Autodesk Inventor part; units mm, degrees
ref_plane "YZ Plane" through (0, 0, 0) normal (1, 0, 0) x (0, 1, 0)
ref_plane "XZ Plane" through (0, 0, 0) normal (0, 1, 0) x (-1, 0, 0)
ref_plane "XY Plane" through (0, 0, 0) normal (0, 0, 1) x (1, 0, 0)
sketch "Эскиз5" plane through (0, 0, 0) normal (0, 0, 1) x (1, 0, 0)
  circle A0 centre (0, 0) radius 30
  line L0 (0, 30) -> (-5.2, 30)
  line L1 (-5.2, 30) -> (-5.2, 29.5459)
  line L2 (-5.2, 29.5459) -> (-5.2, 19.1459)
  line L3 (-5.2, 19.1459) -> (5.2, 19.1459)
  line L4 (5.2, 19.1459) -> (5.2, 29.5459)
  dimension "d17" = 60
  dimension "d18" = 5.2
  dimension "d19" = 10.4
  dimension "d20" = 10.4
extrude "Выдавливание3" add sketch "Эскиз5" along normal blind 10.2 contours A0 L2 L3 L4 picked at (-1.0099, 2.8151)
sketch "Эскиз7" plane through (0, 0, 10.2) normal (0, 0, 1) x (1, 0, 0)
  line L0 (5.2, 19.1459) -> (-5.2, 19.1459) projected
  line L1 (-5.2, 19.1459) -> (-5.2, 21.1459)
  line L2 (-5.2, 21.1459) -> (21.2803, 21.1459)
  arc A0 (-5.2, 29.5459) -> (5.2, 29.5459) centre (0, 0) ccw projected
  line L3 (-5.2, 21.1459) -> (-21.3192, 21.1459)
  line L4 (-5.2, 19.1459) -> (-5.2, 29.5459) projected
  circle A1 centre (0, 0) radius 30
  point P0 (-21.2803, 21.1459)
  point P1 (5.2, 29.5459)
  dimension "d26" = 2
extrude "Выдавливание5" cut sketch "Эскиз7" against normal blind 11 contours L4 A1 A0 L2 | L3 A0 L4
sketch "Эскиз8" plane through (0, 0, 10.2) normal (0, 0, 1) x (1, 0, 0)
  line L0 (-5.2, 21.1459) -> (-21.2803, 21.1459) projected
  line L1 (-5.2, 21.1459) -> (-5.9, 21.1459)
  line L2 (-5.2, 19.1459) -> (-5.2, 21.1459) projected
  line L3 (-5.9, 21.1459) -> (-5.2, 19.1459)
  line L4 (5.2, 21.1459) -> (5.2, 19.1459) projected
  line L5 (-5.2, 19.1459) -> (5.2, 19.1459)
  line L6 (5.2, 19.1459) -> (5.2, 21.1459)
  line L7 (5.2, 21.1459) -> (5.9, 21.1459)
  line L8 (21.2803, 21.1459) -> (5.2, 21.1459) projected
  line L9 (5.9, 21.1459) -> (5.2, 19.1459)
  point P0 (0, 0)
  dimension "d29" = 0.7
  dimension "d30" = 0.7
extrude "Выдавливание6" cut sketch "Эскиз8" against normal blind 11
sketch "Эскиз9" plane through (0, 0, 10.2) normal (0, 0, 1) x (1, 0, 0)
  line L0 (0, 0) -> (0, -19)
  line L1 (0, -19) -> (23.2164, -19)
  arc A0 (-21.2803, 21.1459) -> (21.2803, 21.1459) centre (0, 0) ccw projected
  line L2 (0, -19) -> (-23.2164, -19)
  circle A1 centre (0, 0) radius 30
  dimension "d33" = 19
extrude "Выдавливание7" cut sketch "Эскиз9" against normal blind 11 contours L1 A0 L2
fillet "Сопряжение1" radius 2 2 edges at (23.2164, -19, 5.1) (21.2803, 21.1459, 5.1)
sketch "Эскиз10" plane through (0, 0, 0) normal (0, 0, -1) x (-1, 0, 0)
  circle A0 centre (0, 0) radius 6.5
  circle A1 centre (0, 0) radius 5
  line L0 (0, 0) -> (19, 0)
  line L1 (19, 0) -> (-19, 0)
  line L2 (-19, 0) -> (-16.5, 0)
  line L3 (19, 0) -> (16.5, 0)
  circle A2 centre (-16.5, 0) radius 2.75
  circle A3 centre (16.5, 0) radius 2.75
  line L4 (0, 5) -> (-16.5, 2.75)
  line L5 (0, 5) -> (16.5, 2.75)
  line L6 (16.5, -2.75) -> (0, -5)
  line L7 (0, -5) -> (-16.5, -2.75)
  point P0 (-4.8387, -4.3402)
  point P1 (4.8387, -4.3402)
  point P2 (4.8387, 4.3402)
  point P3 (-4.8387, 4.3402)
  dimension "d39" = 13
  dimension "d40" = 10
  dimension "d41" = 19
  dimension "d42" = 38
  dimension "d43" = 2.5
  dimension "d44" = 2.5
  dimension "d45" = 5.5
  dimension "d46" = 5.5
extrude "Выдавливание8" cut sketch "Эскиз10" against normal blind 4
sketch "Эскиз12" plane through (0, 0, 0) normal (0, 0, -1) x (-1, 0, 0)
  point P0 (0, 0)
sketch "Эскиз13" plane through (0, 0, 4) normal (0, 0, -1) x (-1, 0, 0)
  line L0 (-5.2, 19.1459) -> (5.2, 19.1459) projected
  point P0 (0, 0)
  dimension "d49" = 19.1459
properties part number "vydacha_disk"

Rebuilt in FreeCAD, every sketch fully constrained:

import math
import FreeCAD as App
import Part
import Sketcher


def edges_at(feature, points):
    """Names of the edges that pass closest to the given points."""
    edges = feature.Shape.Edges
    near = lambda p: min(range(len(edges)), key=lambda i: edges[i].distToShape(Part.Vertex(*p))[0])
    return sorted({f"Edge{near(p) + 1}" for p in points})


def add_polygon(sketch, points):
    """Adds a closed chain of lines whose ends are joined by coincident constraints."""
    first, n = sketch.GeometryCount, len(points)
    for a, b in zip(points, points[1:] + points[:1]):
        sketch.addGeometry(Part.LineSegment(App.Vector(*a, 0), App.Vector(*b, 0)), False)
    for i in range(n):
        sketch.addConstraint(Sketcher.Constraint("Coincident", first + i, 2, first + (i + 1) % n, 1))

doc = App.newDocument("Part")
body = doc.addObject("PartDesign::Body", "Body")

# Sketch on XY plane
sketch1 = body.newObject("Sketcher::SketchObject", "Sketch")
sketch1.AttachmentSupport = (doc.getObject("XY_Plane"), [""])
sketch1.MapMode = "FlatFace"
sketch1.addGeometry([
    Part.ArcOfCircle(Part.Circle(App.Vector(0, 0, 0), App.Vector(0, 0, 1), 30), math.radians(100), math.radians(440)),
    Part.LineSegment(App.Vector(5, 30, 0), App.Vector(5, 19, 0)),
    Part.LineSegment(App.Vector(5, 19, 0), App.Vector(-5, 19, 0)),
    Part.LineSegment(App.Vector(-5, 19, 0), App.Vector(-5, 30, 0)),
], False)
sketch1.addConstraint([
    Sketcher.Constraint("Coincident", 0, 2, 1, 1),
    Sketcher.Constraint("Coincident", 1, 2, 2, 1),
    Sketcher.Constraint("Coincident", 2, 2, 3, 1),
    Sketcher.Constraint("Coincident", 3, 2, 0, 1),
    Sketcher.Constraint("Vertical", 1),
    Sketcher.Constraint("Horizontal", 2),
    Sketcher.Constraint("Vertical", 3),
    Sketcher.Constraint("Coincident", 0, 3, -1, 1),
    Sketcher.Constraint("Horizontal", 0, 2, 3, 2),
    Sketcher.Constraint("Equal", 2, 1),
    Sketcher.Constraint("Radius", 0, 30.0),
    Sketcher.Constraint("DistanceX", 2, 2, 2, 1, 10.4),
])
pad1 = body.newObject("PartDesign::Pad", "Pad")
pad1.Profile = sketch1
pad1.Length = 10.2

# Sketch on XY plane
sketch2 = body.newObject("Sketcher::SketchObject", "Sketch001")
sketch2.AttachmentSupport = (doc.getObject("XY_Plane"), [""])
sketch2.MapMode = "FlatFace"
sketch2.AttachmentOffset = App.Placement(App.Vector(0, 0, 10.2), App.Rotation())
sketch2.addGeometry([
    Part.LineSegment(App.Vector(-21, 21, 0), App.Vector(21, 21, 0)),
    Part.ArcOfCircle(Part.Circle(App.Vector(0, 0, 0), App.Vector(0, 0, 1), 30), math.radians(45), math.radians(135)),
], False)
sketch2.addConstraint([
    Sketcher.Constraint("Coincident", 0, 1, 1, 2),
    Sketcher.Constraint("Coincident", 1, 1, 0, 2),
    Sketcher.Constraint("Horizontal", 0),
    Sketcher.Constraint("Coincident", 1, 3, -1, 1),
    Sketcher.Constraint("Radius", 1, 30.0),
    Sketcher.Constraint("DistanceX", 0, 1, 0, 2, 42.5606),
])
pocket1 = body.newObject("PartDesign::Pocket", "Pocket")
pocket1.Profile = sketch2
pocket1.Length = 11

# Sketch on XY plane
sketch3 = body.newObject("Sketcher::SketchObject", "Sketch002")
sketch3.AttachmentSupport = (doc.getObject("XY_Plane"), [""])
sketch3.MapMode = "FlatFace"
sketch3.AttachmentOffset = App.Placement(App.Vector(0, 0, 10.2), App.Rotation())
add_polygon(sketch3, [(-5.2, 19.1), (-5.2, 21.1), (-5.9, 21.1)])  # lines 0-2
add_polygon(sketch3, [(5.2, 21.1), (5.2, 19.1), (5.9, 21.1)])  # lines 3-5
sketch3.addConstraint([
    Sketcher.Constraint("Vertical", 0),
    Sketcher.Constraint("Horizontal", 1),
    Sketcher.Constraint("Vertical", 3),
    Sketcher.Constraint("Horizontal", 5),
    Sketcher.Constraint("Symmetric", 2, 2, 3, 2, -2),
    Sketcher.Constraint("Symmetric", 1, 2, 4, 2, -2),
    Sketcher.Constraint("DistanceX", 1, 2, 1, 1, 0.7),
    Sketcher.Constraint("DistanceY", 0, 1, 0, 2, 2.0),
    Sketcher.Constraint("DistanceX", 0, 2, -1, 1, 5.2),
    Sketcher.Constraint("DistanceY", -1, 1, 0, 2, 21.146),
])
pocket2 = body.newObject("PartDesign::Pocket", "Pocket001")
pocket2.Profile = sketch3
pocket2.Length = 11

# Sketch on XY plane
sketch4 = body.newObject("Sketcher::SketchObject", "Sketch003")
sketch4.AttachmentSupport = (doc.getObject("XY_Plane"), [""])
sketch4.MapMode = "FlatFace"
sketch4.AttachmentOffset = App.Placement(App.Vector(0, 0, 10.2), App.Rotation())
sketch4.addGeometry([
    Part.LineSegment(App.Vector(23, -19, 0), App.Vector(-23, -19, 0)),
    Part.ArcOfCircle(Part.Circle(App.Vector(0, 0, 0), App.Vector(0, 0, 1), 30), math.radians(-141), math.radians(-39)),
], False)
sketch4.addConstraint([
    Sketcher.Constraint("Coincident", 0, 1, 1, 2),
    Sketcher.Constraint("Coincident", 1, 1, 0, 2),
    Sketcher.Constraint("Horizontal", 0),
    Sketcher.Constraint("Coincident", 1, 3, -1, 1),
    Sketcher.Constraint("DistanceY", 0, 1, -1, 1, 19.0),
    Sketcher.Constraint("Radius", 1, 30.0),
])
pocket3 = body.newObject("PartDesign::Pocket", "Pocket002")
pocket3.Profile = sketch4
pocket3.Length = 11
doc.recompute()

fillet = body.newObject("PartDesign::Fillet", "Fillet")
fillet.Base = (pocket3, edges_at(pocket3, [(23.216, -19, 5.1), (21.28, 21.146, 5.1)]))
fillet.Radius = 2

# Sketch on XY plane
sketch5 = body.newObject("Sketcher::SketchObject", "Sketch004")
sketch5.AttachmentSupport = (doc.getObject("XY_Plane"), [""])
sketch5.MapMode = "FlatFace"
sketch5.addGeometry([
    Part.ArcOfCircle(Part.Circle(App.Vector(0, 0, 0), App.Vector(0, 0, 1), 6.5), math.radians(42), math.radians(138)),  # 0
    Part.LineSegment(App.Vector(4.8, 4.3, 0), App.Vector(16.5, 2.8, 0)),  # 1
    Part.ArcOfCircle(Part.Circle(App.Vector(16.5, 0, 0), App.Vector(0, 0, 1), 2.8), math.radians(-90), math.radians(90)),  # 2
    Part.LineSegment(App.Vector(16.5, -2.8, 0), App.Vector(4.8, -4.3, 0)),  # 3
    Part.ArcOfCircle(Part.Circle(App.Vector(0, 0, 0), App.Vector(0, 0, 1), 6.5), math.radians(-138), math.radians(-42)),  # 4
    Part.LineSegment(App.Vector(-4.8, -4.3, 0), App.Vector(-16.5, -2.8, 0)),  # 5
    Part.ArcOfCircle(Part.Circle(App.Vector(-16.5, 0, 0), App.Vector(0, 0, 1), 2.8), math.radians(90), math.radians(270)),  # 6
    Part.LineSegment(App.Vector(-16.5, 2.8, 0), App.Vector(-4.8, 4.3, 0)),  # 7
], False)
sketch5.addConstraint([
    Sketcher.Constraint("Coincident", 0, 1, 1, 1),
    Sketcher.Constraint("Coincident", 1, 2, 2, 2),
    Sketcher.Constraint("Coincident", 2, 1, 3, 1),
    Sketcher.Constraint("Coincident", 3, 2, 4, 2),
    Sketcher.Constraint("Coincident", 4, 1, 5, 1),
    Sketcher.Constraint("Coincident", 5, 2, 6, 2),
    Sketcher.Constraint("Coincident", 6, 1, 7, 1),
    Sketcher.Constraint("Coincident", 7, 2, 0, 2),
    Sketcher.Constraint("Coincident", 0, 3, -1, 1),
    Sketcher.Constraint("Coincident", 4, 3, -1, 1),
    Sketcher.Constraint("Equal", 0, 4),
    Sketcher.Constraint("Equal", 2, 6),
    Sketcher.Constraint("Symmetric", 2, 3, 6, 3, -1, 1),
    Sketcher.Constraint("Symmetric", 2, 1, 5, 2, -2),
    Sketcher.Constraint("Parallel", 1, 5),
    Sketcher.Constraint("Parallel", 3, 7),
    Sketcher.Constraint("Horizontal", 3, 2, 4, 1),
    Sketcher.Constraint("Horizontal", 0, 1, 7, 2),
    Sketcher.Constraint("Vertical", 2, 3, 1, 2),
    Sketcher.Constraint("Vertical", 1, 2, 2, 1),
    Sketcher.Constraint("Radius", 0, 6.5),
    Sketcher.Constraint("Radius", 2, 2.75),
    Sketcher.Constraint("DistanceX", 6, 3, 2, 3, 33.0),
    Sketcher.Constraint("Distance", 1, 11.7692),
])
pocket4 = body.newObject("PartDesign::Pocket", "Pocket003")
pocket4.Profile = sketch5
pocket4.Length = 4
pocket4.Reversed = True

doc.recompute()
